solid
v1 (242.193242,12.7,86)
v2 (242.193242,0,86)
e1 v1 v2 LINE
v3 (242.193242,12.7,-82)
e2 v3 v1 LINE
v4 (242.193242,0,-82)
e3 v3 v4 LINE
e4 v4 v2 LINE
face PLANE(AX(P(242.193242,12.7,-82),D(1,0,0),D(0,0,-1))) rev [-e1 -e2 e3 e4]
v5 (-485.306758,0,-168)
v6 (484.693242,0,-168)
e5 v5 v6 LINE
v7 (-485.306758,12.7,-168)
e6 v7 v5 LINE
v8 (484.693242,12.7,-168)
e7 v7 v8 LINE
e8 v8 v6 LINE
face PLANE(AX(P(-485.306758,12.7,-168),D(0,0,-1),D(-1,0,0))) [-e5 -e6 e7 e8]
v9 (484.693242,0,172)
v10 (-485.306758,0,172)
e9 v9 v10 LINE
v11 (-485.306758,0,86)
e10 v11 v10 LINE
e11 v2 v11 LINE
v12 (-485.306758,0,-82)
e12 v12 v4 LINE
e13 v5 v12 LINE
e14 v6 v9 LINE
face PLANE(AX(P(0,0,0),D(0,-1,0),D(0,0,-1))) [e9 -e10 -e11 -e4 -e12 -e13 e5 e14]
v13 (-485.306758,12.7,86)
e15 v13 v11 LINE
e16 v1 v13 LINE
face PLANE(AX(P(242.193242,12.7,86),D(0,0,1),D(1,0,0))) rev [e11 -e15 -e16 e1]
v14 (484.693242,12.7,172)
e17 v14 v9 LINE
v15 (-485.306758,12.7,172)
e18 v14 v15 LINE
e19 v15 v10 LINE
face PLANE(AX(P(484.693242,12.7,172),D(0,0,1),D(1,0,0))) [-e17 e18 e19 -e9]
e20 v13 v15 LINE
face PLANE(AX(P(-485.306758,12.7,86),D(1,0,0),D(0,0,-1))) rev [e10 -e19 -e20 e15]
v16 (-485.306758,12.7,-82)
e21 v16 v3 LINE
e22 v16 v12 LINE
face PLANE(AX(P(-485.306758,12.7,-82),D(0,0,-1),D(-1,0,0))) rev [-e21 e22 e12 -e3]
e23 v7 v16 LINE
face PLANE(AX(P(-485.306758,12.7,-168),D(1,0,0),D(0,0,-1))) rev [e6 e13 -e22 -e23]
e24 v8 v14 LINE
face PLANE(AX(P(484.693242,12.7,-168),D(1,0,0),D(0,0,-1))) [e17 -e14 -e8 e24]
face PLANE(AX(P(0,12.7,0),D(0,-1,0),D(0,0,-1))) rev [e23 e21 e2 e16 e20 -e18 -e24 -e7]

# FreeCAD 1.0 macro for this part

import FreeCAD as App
import Part
import Sketcher
Q = App.Units.Quantity


def add_polygon(sketch, points):
    """Adds a closed chain of lines whose ends are joined by coincident constraints."""
    first, n = sketch.GeometryCount, len(points)
    for a, b in zip(points, points[1:] + points[:1]):
        sketch.addGeometry(Part.LineSegment(App.Vector(*a, 0), App.Vector(*b, 0)), False)
    for i in range(n):
        sketch.addConstraint(Sketcher.Constraint("Coincident", first + i, 2, first + (i + 1) % n, 1))

doc = App.newDocument("Part")
params = doc.addObject("Spreadsheet::Sheet", "Params")
for row, (alias, value) in enumerate([
    ("sketch1_width", "970 mm"),
    ("sketch1_height", "86 mm"),
    ("sketch1_height2", "168 mm"),
    ("sketch1_width2", "727.5 mm"),
    ("pad1_length", "12.7 mm"),
], start=1):
    params.set(f"A{row}", alias)
    params.set(f"B{row}", "=" + value)
    params.setAlias(f"B{row}", alias)

body = doc.addObject("PartDesign::Body", "Body")

sketch1 = doc.addObject("Sketcher::SketchObject", "Sketch")
body.addObject(sketch1)
sketch1.AttachmentSupport = (doc.XZ_Plane, [""])
sketch1.MapMode = "FlatFace"
add_polygon(sketch1, [(484.693242, -168), (-485.306758, -168), (-485.306758, -82), (242.193242, -82), (242.193242, 86), (-485.306758, 86), (-485.306758, 172), (484.693242, 172)])
sketch1.addConstraint(Sketcher.Constraint("Horizontal", 0))
sketch1.addConstraint(Sketcher.Constraint("Vertical", 1))
sketch1.addConstraint(Sketcher.Constraint("Horizontal", 2))
sketch1.addConstraint(Sketcher.Constraint("Vertical", 3))
sketch1.addConstraint(Sketcher.Constraint("Horizontal", 4))
sketch1.addConstraint(Sketcher.Constraint("Vertical", 5))
sketch1.addConstraint(Sketcher.Constraint("Horizontal", 6))
sketch1.addConstraint(Sketcher.Constraint("Vertical", 7))
sketch1.addConstraint(Sketcher.Constraint("Vertical", 1, 2, 4, 2))
sketch1.addConstraint(Sketcher.Constraint("Equal", 1, 5))
sketch1.addConstraint(Sketcher.Constraint("DistanceX", 0, 2, 0, 1, Q("970 mm")))
sketch1.addConstraint(Sketcher.Constraint("DistanceY", 1, 1, 1, 2, Q("86 mm")))
sketch1.addConstraint(Sketcher.Constraint("DistanceY", 3, 1, 3, 2, Q("168 mm")))
sketch1.addConstraint(Sketcher.Constraint("DistanceX", 2, 1, 2, 2, Q("727.5 mm")))
sketch1.addConstraint(Sketcher.Constraint("DistanceY", 0, 2, -1, 1, Q("168 mm")))
sketch1.addConstraint(Sketcher.Constraint("DistanceX", 0, 2, -1, 1, Q("485.306758 mm")))
sketch1.setExpression("Constraints[18]", "Params.sketch1_width")
sketch1.setExpression("Constraints[19]", "Params.sketch1_height")
sketch1.setExpression("Constraints[20]", "Params.sketch1_height2")
sketch1.setExpression("Constraints[21]", "Params.sketch1_width2")
pad1 = doc.addObject("PartDesign::Pad", "Pad")
body.addObject(pad1)
pad1.Profile = sketch1
pad1.setExpression("Length", "Params.pad1_length")
pad1.Reversed = True

doc.recompute()
